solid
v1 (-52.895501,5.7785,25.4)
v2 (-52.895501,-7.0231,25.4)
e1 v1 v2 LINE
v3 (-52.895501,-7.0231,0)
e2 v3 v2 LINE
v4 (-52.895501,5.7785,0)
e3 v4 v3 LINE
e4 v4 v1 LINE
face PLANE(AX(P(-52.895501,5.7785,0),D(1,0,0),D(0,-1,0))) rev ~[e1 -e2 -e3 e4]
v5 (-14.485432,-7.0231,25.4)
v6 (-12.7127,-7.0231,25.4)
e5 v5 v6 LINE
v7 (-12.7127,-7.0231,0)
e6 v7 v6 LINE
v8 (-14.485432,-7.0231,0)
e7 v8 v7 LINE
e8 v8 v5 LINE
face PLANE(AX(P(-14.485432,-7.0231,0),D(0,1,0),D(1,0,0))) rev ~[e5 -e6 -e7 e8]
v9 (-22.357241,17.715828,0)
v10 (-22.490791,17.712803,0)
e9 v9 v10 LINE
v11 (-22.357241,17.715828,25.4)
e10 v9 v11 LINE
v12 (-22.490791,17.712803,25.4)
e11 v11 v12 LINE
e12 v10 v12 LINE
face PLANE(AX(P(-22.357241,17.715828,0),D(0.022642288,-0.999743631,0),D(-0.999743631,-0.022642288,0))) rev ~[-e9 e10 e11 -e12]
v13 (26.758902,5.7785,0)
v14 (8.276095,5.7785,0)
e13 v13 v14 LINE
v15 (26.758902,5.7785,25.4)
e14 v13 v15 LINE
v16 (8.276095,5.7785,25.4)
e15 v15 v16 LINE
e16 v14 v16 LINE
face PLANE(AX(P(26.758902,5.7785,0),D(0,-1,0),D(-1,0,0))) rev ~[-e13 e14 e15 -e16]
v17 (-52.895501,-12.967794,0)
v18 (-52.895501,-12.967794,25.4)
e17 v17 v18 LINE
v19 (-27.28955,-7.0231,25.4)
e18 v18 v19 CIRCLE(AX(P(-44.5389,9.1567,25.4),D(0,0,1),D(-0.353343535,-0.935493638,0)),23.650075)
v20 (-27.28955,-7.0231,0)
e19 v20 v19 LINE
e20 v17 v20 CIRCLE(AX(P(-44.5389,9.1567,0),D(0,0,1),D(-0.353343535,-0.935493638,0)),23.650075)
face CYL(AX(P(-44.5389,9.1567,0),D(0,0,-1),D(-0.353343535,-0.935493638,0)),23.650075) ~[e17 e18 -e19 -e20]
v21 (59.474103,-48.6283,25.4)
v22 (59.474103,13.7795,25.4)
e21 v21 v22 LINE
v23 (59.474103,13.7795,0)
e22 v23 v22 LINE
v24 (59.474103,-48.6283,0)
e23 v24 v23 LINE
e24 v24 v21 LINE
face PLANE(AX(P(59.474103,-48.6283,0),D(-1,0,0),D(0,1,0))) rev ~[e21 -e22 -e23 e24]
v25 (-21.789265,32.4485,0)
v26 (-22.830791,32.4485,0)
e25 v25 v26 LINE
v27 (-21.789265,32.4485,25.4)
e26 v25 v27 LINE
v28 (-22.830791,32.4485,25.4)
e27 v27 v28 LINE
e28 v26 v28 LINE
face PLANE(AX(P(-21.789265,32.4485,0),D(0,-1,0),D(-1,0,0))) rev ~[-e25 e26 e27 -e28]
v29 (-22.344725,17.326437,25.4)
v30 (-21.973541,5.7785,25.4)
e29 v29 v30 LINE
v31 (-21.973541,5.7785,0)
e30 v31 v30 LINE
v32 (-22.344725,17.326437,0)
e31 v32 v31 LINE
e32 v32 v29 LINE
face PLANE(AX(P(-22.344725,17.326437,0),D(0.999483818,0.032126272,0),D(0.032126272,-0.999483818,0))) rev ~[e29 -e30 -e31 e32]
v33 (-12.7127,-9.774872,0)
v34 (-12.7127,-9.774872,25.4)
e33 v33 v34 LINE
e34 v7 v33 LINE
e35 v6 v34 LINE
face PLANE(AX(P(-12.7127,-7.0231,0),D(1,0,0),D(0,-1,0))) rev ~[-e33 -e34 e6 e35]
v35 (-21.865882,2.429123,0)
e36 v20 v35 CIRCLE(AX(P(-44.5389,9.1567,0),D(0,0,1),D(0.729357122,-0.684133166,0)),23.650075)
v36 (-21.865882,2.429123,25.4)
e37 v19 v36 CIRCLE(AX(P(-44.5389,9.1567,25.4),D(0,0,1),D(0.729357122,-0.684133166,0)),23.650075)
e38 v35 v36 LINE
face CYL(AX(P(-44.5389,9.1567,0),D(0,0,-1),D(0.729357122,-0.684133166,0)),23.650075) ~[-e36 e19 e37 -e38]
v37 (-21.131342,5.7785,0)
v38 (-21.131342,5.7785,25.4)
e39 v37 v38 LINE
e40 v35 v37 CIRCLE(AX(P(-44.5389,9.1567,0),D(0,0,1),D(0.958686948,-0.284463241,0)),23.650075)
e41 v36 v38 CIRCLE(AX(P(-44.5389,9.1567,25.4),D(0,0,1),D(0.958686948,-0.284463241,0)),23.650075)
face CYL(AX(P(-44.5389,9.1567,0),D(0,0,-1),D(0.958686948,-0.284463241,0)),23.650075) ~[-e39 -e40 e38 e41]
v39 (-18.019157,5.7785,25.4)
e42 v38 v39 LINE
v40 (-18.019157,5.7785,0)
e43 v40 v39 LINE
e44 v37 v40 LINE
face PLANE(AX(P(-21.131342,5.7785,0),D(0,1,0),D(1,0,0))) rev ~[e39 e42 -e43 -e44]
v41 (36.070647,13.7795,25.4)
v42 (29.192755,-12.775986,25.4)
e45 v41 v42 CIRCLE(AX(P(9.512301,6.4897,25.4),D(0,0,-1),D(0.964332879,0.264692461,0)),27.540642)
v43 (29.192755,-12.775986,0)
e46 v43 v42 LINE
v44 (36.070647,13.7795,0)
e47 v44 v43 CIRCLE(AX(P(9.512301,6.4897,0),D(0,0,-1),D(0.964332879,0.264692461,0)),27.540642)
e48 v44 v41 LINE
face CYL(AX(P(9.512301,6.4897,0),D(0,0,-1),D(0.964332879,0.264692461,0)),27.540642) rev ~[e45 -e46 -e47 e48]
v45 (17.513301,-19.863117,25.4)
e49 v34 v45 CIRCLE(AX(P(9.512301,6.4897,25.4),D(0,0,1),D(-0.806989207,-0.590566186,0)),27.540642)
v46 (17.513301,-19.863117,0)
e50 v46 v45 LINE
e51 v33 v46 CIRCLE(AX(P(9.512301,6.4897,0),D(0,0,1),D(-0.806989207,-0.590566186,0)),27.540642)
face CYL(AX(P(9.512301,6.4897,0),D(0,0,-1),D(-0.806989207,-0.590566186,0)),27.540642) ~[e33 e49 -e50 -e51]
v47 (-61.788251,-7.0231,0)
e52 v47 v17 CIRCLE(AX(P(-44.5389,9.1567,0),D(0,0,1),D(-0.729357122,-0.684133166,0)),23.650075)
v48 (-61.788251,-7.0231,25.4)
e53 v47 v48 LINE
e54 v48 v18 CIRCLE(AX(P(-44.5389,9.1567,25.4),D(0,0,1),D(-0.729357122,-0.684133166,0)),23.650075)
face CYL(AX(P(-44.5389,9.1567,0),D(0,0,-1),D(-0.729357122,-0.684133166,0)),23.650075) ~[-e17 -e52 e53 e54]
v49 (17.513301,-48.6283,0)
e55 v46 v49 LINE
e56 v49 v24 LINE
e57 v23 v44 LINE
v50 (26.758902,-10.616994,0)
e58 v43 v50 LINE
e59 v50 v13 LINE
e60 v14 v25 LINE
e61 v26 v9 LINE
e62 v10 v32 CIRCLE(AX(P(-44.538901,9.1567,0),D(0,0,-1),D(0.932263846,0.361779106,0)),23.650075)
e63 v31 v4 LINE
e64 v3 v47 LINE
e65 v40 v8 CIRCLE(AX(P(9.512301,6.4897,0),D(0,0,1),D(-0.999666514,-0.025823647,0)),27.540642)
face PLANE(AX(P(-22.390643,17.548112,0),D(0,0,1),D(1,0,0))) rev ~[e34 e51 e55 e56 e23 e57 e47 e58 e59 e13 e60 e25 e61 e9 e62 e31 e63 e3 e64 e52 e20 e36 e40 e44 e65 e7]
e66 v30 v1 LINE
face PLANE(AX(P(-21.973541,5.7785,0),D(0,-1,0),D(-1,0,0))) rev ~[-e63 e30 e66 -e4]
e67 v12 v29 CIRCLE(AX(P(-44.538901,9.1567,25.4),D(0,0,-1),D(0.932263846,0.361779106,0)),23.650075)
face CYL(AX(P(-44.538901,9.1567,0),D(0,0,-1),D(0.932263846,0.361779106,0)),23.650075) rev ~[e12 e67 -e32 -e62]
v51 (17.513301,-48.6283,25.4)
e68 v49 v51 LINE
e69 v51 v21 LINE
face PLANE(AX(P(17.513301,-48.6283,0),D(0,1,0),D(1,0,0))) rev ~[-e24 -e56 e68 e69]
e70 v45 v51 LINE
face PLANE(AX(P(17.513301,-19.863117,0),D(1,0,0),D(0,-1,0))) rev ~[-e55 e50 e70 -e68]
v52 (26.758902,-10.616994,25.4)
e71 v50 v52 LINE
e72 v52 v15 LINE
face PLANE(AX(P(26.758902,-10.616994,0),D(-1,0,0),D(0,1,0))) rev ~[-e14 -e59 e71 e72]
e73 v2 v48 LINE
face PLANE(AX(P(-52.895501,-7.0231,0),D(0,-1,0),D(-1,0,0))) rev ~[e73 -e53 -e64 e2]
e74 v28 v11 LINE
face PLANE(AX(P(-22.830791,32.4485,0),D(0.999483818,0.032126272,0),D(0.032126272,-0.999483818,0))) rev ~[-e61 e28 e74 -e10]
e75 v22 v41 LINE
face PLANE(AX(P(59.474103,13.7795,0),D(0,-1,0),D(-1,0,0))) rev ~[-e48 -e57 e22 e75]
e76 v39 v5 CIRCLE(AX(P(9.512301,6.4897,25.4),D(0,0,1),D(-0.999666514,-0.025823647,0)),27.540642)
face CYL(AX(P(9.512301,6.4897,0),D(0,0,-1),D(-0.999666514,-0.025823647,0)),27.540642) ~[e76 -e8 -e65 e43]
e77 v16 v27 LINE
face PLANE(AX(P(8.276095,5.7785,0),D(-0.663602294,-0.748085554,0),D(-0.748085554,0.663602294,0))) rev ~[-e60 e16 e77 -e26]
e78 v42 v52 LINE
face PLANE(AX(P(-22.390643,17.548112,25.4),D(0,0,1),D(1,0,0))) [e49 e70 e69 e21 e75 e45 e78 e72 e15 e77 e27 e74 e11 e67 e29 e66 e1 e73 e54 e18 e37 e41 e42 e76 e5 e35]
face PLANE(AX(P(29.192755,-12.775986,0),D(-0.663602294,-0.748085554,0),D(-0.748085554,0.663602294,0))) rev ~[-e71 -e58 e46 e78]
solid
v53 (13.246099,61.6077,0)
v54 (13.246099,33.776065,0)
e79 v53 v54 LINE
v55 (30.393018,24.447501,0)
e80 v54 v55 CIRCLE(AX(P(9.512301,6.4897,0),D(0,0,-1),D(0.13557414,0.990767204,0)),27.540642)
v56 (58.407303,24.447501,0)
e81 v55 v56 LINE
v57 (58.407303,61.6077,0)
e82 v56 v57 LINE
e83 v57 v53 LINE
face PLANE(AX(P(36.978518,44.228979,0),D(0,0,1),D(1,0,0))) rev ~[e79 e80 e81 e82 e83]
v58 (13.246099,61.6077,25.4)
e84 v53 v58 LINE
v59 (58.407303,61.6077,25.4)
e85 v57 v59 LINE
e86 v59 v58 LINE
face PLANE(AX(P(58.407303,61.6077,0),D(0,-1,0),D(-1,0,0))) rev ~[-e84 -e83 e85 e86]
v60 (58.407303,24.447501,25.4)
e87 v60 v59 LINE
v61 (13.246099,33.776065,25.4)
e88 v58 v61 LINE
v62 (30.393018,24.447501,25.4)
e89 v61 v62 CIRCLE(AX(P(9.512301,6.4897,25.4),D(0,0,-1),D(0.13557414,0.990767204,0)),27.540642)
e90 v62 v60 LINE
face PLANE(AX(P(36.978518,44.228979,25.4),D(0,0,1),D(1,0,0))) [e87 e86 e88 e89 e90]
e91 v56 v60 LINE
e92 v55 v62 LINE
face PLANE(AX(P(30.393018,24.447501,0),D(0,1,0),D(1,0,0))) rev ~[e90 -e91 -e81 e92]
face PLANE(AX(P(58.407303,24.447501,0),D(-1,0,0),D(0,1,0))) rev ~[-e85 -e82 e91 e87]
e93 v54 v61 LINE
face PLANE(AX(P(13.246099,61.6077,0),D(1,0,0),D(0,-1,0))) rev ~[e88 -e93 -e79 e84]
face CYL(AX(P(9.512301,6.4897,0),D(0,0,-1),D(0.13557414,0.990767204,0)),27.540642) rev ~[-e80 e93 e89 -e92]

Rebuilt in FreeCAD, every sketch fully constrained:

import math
import FreeCAD as App
import Part
import Sketcher
Q = App.Units.Quantity

doc = App.newDocument("Part")
body = doc.addObject("PartDesign::Body", "Body")

# Sketch on XY plane
sketch1 = doc.addObject("Sketcher::SketchObject", "Sketch")
body.addObject(sketch1)
sketch1.AttachmentSupport = (doc.XY_Plane, [""])
sketch1.MapMode = "FlatFace"
sketch1.addGeometry(Part.ArcOfCircle(Part.Circle(App.Vector(9.512301, 6.4897, 0), App.Vector(0, 0, 1), 27.540642), math.radians(40.696136), math.radians(82.208179)), False)
sketch1.addGeometry(Part.LineSegment(App.Vector(30.393018, 24.447501, 0), App.Vector(58.407303, 24.447501, 0)), False)
sketch1.addGeometry(Part.LineSegment(App.Vector(58.407303, 24.447501, 0), App.Vector(58.407303, 61.6077, 0)), False)
sketch1.addGeometry(Part.LineSegment(App.Vector(58.407303, 61.6077, 0), App.Vector(13.246099, 61.6077, 0)), False)
sketch1.addGeometry(Part.LineSegment(App.Vector(13.246099, 61.6077, 0), App.Vector(13.246099, 33.776065, 0)), False)
sketch1.addConstraint(Sketcher.Constraint("Coincident", 0, 1, 1, 1))
sketch1.addConstraint(Sketcher.Constraint("Coincident", 1, 2, 2, 1))
sketch1.addConstraint(Sketcher.Constraint("Coincident", 2, 2, 3, 1))
sketch1.addConstraint(Sketcher.Constraint("Coincident", 3, 2, 4, 1))
sketch1.addConstraint(Sketcher.Constraint("Coincident", 4, 2, 0, 2))
sketch1.addConstraint(Sketcher.Constraint("Horizontal", 1))
sketch1.addConstraint(Sketcher.Constraint("Vertical", 2))
sketch1.addConstraint(Sketcher.Constraint("Horizontal", 3))
sketch1.addConstraint(Sketcher.Constraint("Vertical", 4))
sketch1.addConstraint(Sketcher.Constraint("DistanceX", 3, 2, 3, 1, Q("1.7780001 in")))
sketch1.addConstraint(Sketcher.Constraint("DistanceY", 2, 1, 2, 2, Q("1.463 in")))
sketch1.addConstraint(Sketcher.Constraint("DistanceY", 0, 3, 2, 2, Q("2.17 in")))
sketch1.addConstraint(Sketcher.Constraint("DistanceX", 0, 3, 1, 2, Q("1.9250001 in")))
sketch1.addConstraint(Sketcher.Constraint("DistanceX", -1, 1, 0, 3, Q("0.3745 in")))
sketch1.addConstraint(Sketcher.Constraint("DistanceY", -1, 1, 0, 3, Q("0.2555 in")))
sketch1.addConstraint(Sketcher.Constraint("Radius", 0, Q("27.540642 mm")))
pad1 = doc.addObject("PartDesign::Pad", "Pad")
body.addObject(pad1)
pad1.Profile = sketch1
pad1.Length = Q("1 in")
body2 = doc.addObject("PartDesign::Body", "Body001")

# Sketch on XY plane
sketch2 = doc.addObject("Sketcher::SketchObject", "Sketch001")
body2.addObject(sketch2)
sketch2.AttachmentSupport = (doc.getObject("XY_Plane001"), [""])
sketch2.MapMode = "FlatFace"
sketch2.addGeometry(Part.LineSegment(App.Vector(-22.357241, 17.715828, 0), App.Vector(-22.490791, 17.712803, 0)), False)
sketch2.addGeometry(Part.ArcOfCircle(Part.Circle(App.Vector(-44.538901, 9.1567, 0), App.Vector(0, 0, 1), 23.650075), math.radians(20.2088), math.radians(21.209497)), False)
sketch2.addGeometry(Part.LineSegment(App.Vector(-22.344725, 17.326437, 0), App.Vector(-21.973541, 5.7785, 0)), False)
sketch2.addGeometry(Part.LineSegment(App.Vector(-21.973541, 5.7785, 0), App.Vector(-52.895501, 5.7785, 0)), False)
sketch2.addGeometry(Part.LineSegment(App.Vector(-52.895501, 5.7785, 0), App.Vector(-52.895501, -7.0231, 0)), False)
sketch2.addGeometry(Part.LineSegment(App.Vector(-52.895501, -7.0231, 0), App.Vector(-61.788251, -7.0231, 0)), False)
sketch2.addGeometry(Part.ArcOfCircle(Part.Circle(App.Vector(-44.5389, 9.1567, 0), App.Vector(0, 0, 1), 23.650075), math.radians(-136.832526), math.radians(-110.691958)), False)
sketch2.addGeometry(Part.ArcOfCircle(Part.Circle(App.Vector(-44.5389, 9.1567, 0), App.Vector(0, 0, 1), 23.650075), math.radians(-110.691958), math.radians(-43.167474)), False)
sketch2.addGeometry(Part.ArcOfCircle(Part.Circle(App.Vector(-44.5389, 9.1567, 0), App.Vector(0, 0, 1), 23.650075), math.radians(-43.167474), math.radians(-16.526767)), False)
sketch2.addGeometry(Part.ArcOfCircle(Part.Circle(App.Vector(-44.5389, 9.1567, 0), App.Vector(0, 0, 1), 23.650075), math.radians(-16.526767), math.radians(-8.212275)), False)
sketch2.addGeometry(Part.LineSegment(App.Vector(-21.131342, 5.7785, 0), App.Vector(-18.019157, 5.7785, 0)), False)
sketch2.addGeometry(Part.ArcOfCircle(Part.Circle(App.Vector(9.512301, 6.4897, 0), App.Vector(0, 0, 1), 27.540642), math.radians(-178.52025), math.radians(-150.616724)), False)
sketch2.addGeometry(Part.LineSegment(App.Vector(-14.485432, -7.0231, 0), App.Vector(-12.7127, -7.0231, 0)), False)
sketch2.addGeometry(Part.LineSegment(App.Vector(-12.7127, -7.0231, 0), App.Vector(-12.7127, -9.774872, 0)), False)
sketch2.addGeometry(Part.ArcOfCircle(Part.Circle(App.Vector(9.512301, 6.4897, 0), App.Vector(0, 0, 1), 27.540642), math.radians(-143.802803), math.radians(-73.111142)), False)
sketch2.addGeometry(Part.LineSegment(App.Vector(17.513301, -19.863117, 0), App.Vector(17.513301, -48.6283, 0)), False)
sketch2.addGeometry(Part.LineSegment(App.Vector(17.513301, -48.6283, 0), App.Vector(59.474103, -48.6283, 0)), False)
sketch2.addGeometry(Part.LineSegment(App.Vector(59.474103, -48.6283, 0), App.Vector(59.474103, 13.7795, 0)), False)
sketch2.addGeometry(Part.LineSegment(App.Vector(59.474103, 13.7795, 0), App.Vector(36.070647, 13.7795, 0)), False)
sketch2.addGeometry(Part.ArcOfCircle(Part.Circle(App.Vector(9.512301, 6.4897, 0), App.Vector(0, 0, 1), 27.540642), math.radians(-44.389835), math.radians(15.34868)), False)
sketch2.addGeometry(Part.LineSegment(App.Vector(29.192755, -12.775986, 0), App.Vector(26.758902, -10.616994, 0)), False)
sketch2.addGeometry(Part.LineSegment(App.Vector(26.758902, -10.616994, 0), App.Vector(26.758902, 5.7785, 0)), False)
sketch2.addGeometry(Part.LineSegment(App.Vector(26.758902, 5.7785, 0), App.Vector(8.276095, 5.7785, 0)), False)
sketch2.addGeometry(Part.LineSegment(App.Vector(8.276095, 5.7785, 0), App.Vector(-21.789265, 32.4485, 0)), False)
sketch2.addGeometry(Part.LineSegment(App.Vector(-21.789265, 32.4485, 0), App.Vector(-22.830791, 32.4485, 0)), False)
sketch2.addGeometry(Part.LineSegment(App.Vector(-22.830791, 32.4485, 0), App.Vector(-22.357241, 17.715828, 0)), False)
sketch2.addConstraint(Sketcher.Constraint("Coincident", 0, 2, 1, 2))
sketch2.addConstraint(Sketcher.Constraint("Coincident", 1, 1, 2, 1))
sketch2.addConstraint(Sketcher.Constraint("Coincident", 2, 2, 3, 1))
sketch2.addConstraint(Sketcher.Constraint("Coincident", 3, 2, 4, 1))
sketch2.addConstraint(Sketcher.Constraint("Coincident", 4, 2, 5, 1))
sketch2.addConstraint(Sketcher.Constraint("Coincident", 5, 2, 6, 1))
sketch2.addConstraint(Sketcher.Constraint("Tangent", 6, 2, 7, 1))
sketch2.addConstraint(Sketcher.Constraint("Tangent", 7, 2, 8, 1))
sketch2.addConstraint(Sketcher.Constraint("Tangent", 8, 2, 9, 1))
sketch2.addConstraint(Sketcher.Constraint("Coincident", 9, 2, 10, 1))
sketch2.addConstraint(Sketcher.Constraint("Coincident", 10, 2, 11, 1))
sketch2.addConstraint(Sketcher.Constraint("Coincident", 11, 2, 12, 1))
sketch2.addConstraint(Sketcher.Constraint("Coincident", 12, 2, 13, 1))
sketch2.addConstraint(Sketcher.Constraint("Coincident", 13, 2, 14, 1))
sketch2.addConstraint(Sketcher.Constraint("Coincident", 14, 2, 15, 1))
sketch2.addConstraint(Sketcher.Constraint("Coincident", 15, 2, 16, 1))
sketch2.addConstraint(Sketcher.Constraint("Coincident", 16, 2, 17, 1))
sketch2.addConstraint(Sketcher.Constraint("Coincident", 17, 2, 18, 1))
sketch2.addConstraint(Sketcher.Constraint("Coincident", 18, 2, 19, 2))
sketch2.addConstraint(Sketcher.Constraint("Coincident", 19, 1, 20, 1))
sketch2.addConstraint(Sketcher.Constraint("Coincident", 20, 2, 21, 1))
sketch2.addConstraint(Sketcher.Constraint("Coincident", 21, 2, 22, 1))
sketch2.addConstraint(Sketcher.Constraint("Coincident", 22, 2, 23, 1))
sketch2.addConstraint(Sketcher.Constraint("Coincident", 23, 2, 24, 1))
sketch2.addConstraint(Sketcher.Constraint("Coincident", 24, 2, 25, 1))
sketch2.addConstraint(Sketcher.Constraint("Coincident", 25, 2, 0, 1))
sketch2.addConstraint(Sketcher.Constraint("Horizontal", 3))
sketch2.addConstraint(Sketcher.Constraint("Vertical", 4))
sketch2.addConstraint(Sketcher.Constraint("Horizontal", 5))
sketch2.addConstraint(Sketcher.Constraint("Horizontal", 10))
sketch2.addConstraint(Sketcher.Constraint("Horizontal", 12))
sketch2.addConstraint(Sketcher.Constraint("Vertical", 13))
sketch2.addConstraint(Sketcher.Constraint("Vertical", 15))
sketch2.addConstraint(Sketcher.Constraint("Horizontal", 16))
sketch2.addConstraint(Sketcher.Constraint("Vertical", 17))
sketch2.addConstraint(Sketcher.Constraint("Horizontal", 18))
sketch2.addConstraint(Sketcher.Constraint("Vertical", 21))
sketch2.addConstraint(Sketcher.Constraint("Horizontal", 22))
sketch2.addConstraint(Sketcher.Constraint("Horizontal", 24))
sketch2.addConstraint(Sketcher.Constraint("Coincident", 6, 3, 1, 3))
sketch2.addConstraint(Sketcher.Constraint("Coincident", 8, 3, 1, 3))
sketch2.addConstraint(Sketcher.Constraint("Coincident", 14, 3, 11, 3))
sketch2.addConstraint(Sketcher.Constraint("Coincident", 19, 3, 11, 3))
sketch2.addConstraint(Sketcher.Constraint("Equal", 1, 6))
sketch2.addConstraint(Sketcher.Constraint("Equal", 8, 9))
sketch2.addConstraint(Sketcher.Constraint("Equal", 11, 14))
sketch2.addConstraint(Sketcher.Constraint("Equal", 14, 19))
sketch2.addConstraint(Sketcher.Constraint("Parallel", 20, 23))
sketch2.addConstraint(Sketcher.Constraint("Parallel", 2, 25))
sketch2.addConstraint(Sketcher.Constraint("Horizontal", 5, 2, 7, 2))
sketch2.addConstraint(Sketcher.Constraint("Horizontal", 3, 2, 9, 2))
sketch2.addConstraint(Sketcher.Constraint("Horizontal", 7, 2, 11, 2))
sketch2.addConstraint(Sketcher.Constraint("Horizontal", 10, 2, 21, 2))
sketch2.addConstraint(Sketcher.Constraint("Vertical", 4, 2, 6, 2))
sketch2.addConstraint(Sketcher.Constraint("DistanceX", 16, 1, 16, 2, Q("1.6520001 in")))
sketch2.addConstraint(Sketcher.Constraint("DistanceY", 4, 2, 4, 1, Q("0.504 in")))
sketch2.addConstraint(Sketcher.Constraint("DistanceY", 17, 1, 17, 2, Q("2.457 in")))
sketch2.addConstraint(Sketcher.Constraint("DistanceX", 13, 2, 14, 2, Q("1.1900001 in")))
sketch2.addConstraint(Sketcher.Constraint("DistanceY", 15, 2, 11, 3, Q("2.17 in")))
sketch2.addConstraint(Sketcher.Constraint("DistanceY", 2, 2, 23, 2, Q("1.05 in")))
sketch2.addConstraint(Sketcher.Constraint("DistanceX", 3, 2, 3, 1, Q("1.2174 in")))
sketch2.addConstraint(Sketcher.Constraint("DistanceX", 9, 3, 11, 3, Q("2.128 in")))
sketch2.addConstraint(Sketcher.Constraint("DistanceY", 11, 3, 9, 3, Q("0.105 in")))
sketch2.addConstraint(Sketcher.Constraint("DistanceY", 2, 2, 9, 3, Q("0.133 in")))
sketch2.addConstraint(Sketcher.Constraint("DistanceX", 3, 2, 1, 3, Q("0.329 in")))
sketch2.addConstraint(Sketcher.Constraint("DistanceX", 11, 3, 14, 2, Q("0.315 in")))
sketch2.addConstraint(Sketcher.Constraint("DistanceX", 14, 2, 20, 2, Q("0.364 in")))
sketch2.addConstraint(Sketcher.Constraint("DistanceX", 1, 3, -1, 1, Q("1.7535 in")))
sketch2.addConstraint(Sketcher.Constraint("DistanceY", -1, 1, 1, 3, Q("0.3605 in")))
sketch2.addConstraint(Sketcher.Constraint("Radius", 1, Q("23.650075 mm")))
sketch2.addConstraint(Sketcher.Constraint("Radius", 11, Q("27.540642 mm")))
sketch2.addConstraint(Sketcher.Constraint("Distance", 2, Q("11.553901 mm")))
sketch2.addConstraint(Sketcher.Constraint("DistanceX", 24, 2, 0, 2, Q("0.34 mm")))
sketch2.addConstraint(Sketcher.Constraint("DistanceX", 25, 2, 2, 2, Q("0.3837 mm")))
sketch2.addConstraint(Sketcher.Constraint("Distance", 25, Q("14.740281 mm")))
sketch2.addConstraint(Sketcher.Constraint("DistanceX", 22, 2, 22, 1, Q("18.482806 mm")))
sketch2.addConstraint(Sketcher.Constraint("DistanceX", 24, 2, 24, 1, Q("1.041526 mm")))
sketch2.addConstraint(Sketcher.Constraint("DistanceY", 21, 1, 21, 2, Q("16.395495 mm")))
sketch2.addConstraint(Sketcher.Constraint("DistanceX", 2, 2, 8, 2, Q("0.107659 mm")))
pad2 = doc.addObject("PartDesign::Pad", "Pad001")
body2.addObject(pad2)
pad2.Profile = sketch2
pad2.Length = Q("1 in")

doc.recompute()
